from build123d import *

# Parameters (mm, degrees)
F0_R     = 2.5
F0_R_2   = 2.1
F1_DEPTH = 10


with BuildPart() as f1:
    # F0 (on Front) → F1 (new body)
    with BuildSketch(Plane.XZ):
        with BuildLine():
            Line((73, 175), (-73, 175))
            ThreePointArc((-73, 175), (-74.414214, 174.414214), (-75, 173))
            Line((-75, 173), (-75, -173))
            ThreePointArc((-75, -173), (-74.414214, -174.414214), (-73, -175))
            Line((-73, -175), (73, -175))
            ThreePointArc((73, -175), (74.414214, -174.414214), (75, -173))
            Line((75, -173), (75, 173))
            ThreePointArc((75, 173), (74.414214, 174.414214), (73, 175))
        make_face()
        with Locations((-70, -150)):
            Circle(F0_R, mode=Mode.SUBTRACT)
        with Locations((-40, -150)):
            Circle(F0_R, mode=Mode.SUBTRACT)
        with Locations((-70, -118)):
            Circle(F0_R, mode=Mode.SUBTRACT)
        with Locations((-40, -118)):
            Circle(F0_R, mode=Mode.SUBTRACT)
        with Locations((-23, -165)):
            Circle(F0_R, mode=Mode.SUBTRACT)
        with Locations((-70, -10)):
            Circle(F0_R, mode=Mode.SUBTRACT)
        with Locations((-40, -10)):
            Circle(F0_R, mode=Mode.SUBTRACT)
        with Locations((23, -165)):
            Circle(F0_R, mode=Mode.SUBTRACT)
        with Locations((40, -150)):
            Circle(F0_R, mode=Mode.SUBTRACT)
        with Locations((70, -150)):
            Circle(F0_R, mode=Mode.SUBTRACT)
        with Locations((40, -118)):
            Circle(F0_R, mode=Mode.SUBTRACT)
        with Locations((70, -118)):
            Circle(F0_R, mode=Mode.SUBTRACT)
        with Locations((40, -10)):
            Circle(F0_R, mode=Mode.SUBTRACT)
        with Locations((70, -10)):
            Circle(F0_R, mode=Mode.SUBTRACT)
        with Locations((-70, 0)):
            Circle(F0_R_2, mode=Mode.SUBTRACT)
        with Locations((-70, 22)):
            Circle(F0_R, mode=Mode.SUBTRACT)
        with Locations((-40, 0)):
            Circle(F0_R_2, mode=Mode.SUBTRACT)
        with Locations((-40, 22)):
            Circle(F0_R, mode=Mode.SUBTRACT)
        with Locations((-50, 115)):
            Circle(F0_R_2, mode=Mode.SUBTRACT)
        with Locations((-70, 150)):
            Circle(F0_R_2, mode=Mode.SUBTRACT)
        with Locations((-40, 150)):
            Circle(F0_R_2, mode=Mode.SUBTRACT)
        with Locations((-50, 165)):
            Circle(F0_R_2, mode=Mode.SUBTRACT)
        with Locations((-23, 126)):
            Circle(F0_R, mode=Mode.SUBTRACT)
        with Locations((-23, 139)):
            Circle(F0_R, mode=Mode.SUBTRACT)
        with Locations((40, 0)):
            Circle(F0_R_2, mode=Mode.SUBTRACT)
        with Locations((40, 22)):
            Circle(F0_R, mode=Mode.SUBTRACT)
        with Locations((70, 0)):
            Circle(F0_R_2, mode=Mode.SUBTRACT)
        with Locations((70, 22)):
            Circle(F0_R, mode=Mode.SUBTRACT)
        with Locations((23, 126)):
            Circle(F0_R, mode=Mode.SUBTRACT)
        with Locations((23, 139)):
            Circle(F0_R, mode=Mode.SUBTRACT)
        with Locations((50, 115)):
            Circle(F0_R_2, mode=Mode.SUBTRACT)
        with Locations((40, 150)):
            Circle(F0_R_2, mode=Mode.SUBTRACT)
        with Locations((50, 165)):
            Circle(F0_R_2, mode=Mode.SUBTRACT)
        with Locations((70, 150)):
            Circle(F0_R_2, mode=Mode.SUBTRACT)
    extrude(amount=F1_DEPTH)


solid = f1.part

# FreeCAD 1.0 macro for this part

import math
import FreeCAD as App
import Part
import Sketcher
from FreeCAD import Vector
Q = App.Units.Quantity

doc = App.newDocument("Part")
params = doc.addObject("Spreadsheet::Sheet", "Params")
for row, (alias, value) in enumerate([
    ("sketch1_diameter", "5 mm"),
    ("sketch1_radius", "1.999999 mm"),
    ("sketch1_diameter2", "4.2 mm"),
    ("sketch1_width", "146 mm"),
    ("sketch1_height", "346 mm"),
    ("pad1_length", "10 mm"),
], start=1):
    params.set(f"A{row}", alias)
    params.set(f"B{row}", "=" + value)
    params.setAlias(f"B{row}", alias)

body = doc.addObject("PartDesign::Body", "Body")

# Sketch on XZ plane
sketch1 = body.newObject("Sketcher::SketchObject", "Sketch")
sketch1.AttachmentSupport = (doc.getObject("XZ_Plane"), [""])
sketch1.MapMode = "FlatFace"
sketch1.addGeometry(Part.LineSegment(Vector(73, 175, 0), Vector(-73, 175, 0)), False)
sketch1.addGeometry(Part.ArcOfCircle(Part.Circle(Vector(-73.000001, 173.000001, 0), Vector(0, 0, 1), 1.999999), math.radians(89.999957), math.radians(180.000043)), False)
sketch1.addGeometry(Part.LineSegment(Vector(-75, 173, 0), Vector(-75, -173, 0)), False)
sketch1.addGeometry(Part.ArcOfCircle(Part.Circle(Vector(-73.000001, -173.000001, 0), Vector(0, 0, 1), 1.999999), math.radians(179.999957), math.radians(270.000043)), False)
sketch1.addGeometry(Part.LineSegment(Vector(-73, -175, 0), Vector(73, -175, 0)), False)
sketch1.addGeometry(Part.ArcOfCircle(Part.Circle(Vector(73.000001, -173.000001, 0), Vector(0, 0, 1), 1.999999), math.radians(-90.000043), math.radians(0.000043)), False)
sketch1.addGeometry(Part.LineSegment(Vector(75, -173, 0), Vector(75, 173, 0)), False)
sketch1.addGeometry(Part.ArcOfCircle(Part.Circle(Vector(73.000001, 173.000001, 0), Vector(0, 0, 1), 1.999999), math.radians(-0.000043), math.radians(90.000043)), False)
sketch1.addGeometry(Part.Circle(Vector(-70, -150, 0), Vector(0, 0, 1), 2.5), False)
sketch1.addGeometry(Part.Circle(Vector(-40, -150, 0), Vector(0, 0, 1), 2.5), False)
sketch1.addGeometry(Part.Circle(Vector(-70, -118, 0), Vector(0, 0, 1), 2.5), False)
sketch1.addGeometry(Part.Circle(Vector(-40, -118, 0), Vector(0, 0, 1), 2.5), False)
sketch1.addGeometry(Part.Circle(Vector(-23, -165, 0), Vector(0, 0, 1), 2.5), False)
sketch1.addGeometry(Part.Circle(Vector(-70, -10, 0), Vector(0, 0, 1), 2.5), False)
sketch1.addGeometry(Part.Circle(Vector(-40, -10, 0), Vector(0, 0, 1), 2.5), False)
sketch1.addGeometry(Part.Circle(Vector(23, -165, 0), Vector(0, 0, 1), 2.5), False)
sketch1.addGeometry(Part.Circle(Vector(40, -150, 0), Vector(0, 0, 1), 2.5), False)
sketch1.addGeometry(Part.Circle(Vector(70, -150, 0), Vector(0, 0, 1), 2.5), False)
sketch1.addGeometry(Part.Circle(Vector(40, -118, 0), Vector(0, 0, 1), 2.5), False)
sketch1.addGeometry(Part.Circle(Vector(70, -118, 0), Vector(0, 0, 1), 2.5), False)
sketch1.addGeometry(Part.Circle(Vector(40, -10, 0), Vector(0, 0, 1), 2.5), False)
sketch1.addGeometry(Part.Circle(Vector(70, -10, 0), Vector(0, 0, 1), 2.5), False)
sketch1.addGeometry(Part.Circle(Vector(-70, 0, 0), Vector(0, 0, 1), 2.1), False)
sketch1.addGeometry(Part.Circle(Vector(-70, 22, 0), Vector(0, 0, 1), 2.5), False)
sketch1.addGeometry(Part.Circle(Vector(-40, 0, 0), Vector(0, 0, 1), 2.1), False)
sketch1.addGeometry(Part.Circle(Vector(-40, 22, 0), Vector(0, 0, 1), 2.5), False)
sketch1.addGeometry(Part.Circle(Vector(-50, 115, 0), Vector(0, 0, 1), 2.1), False)
sketch1.addGeometry(Part.Circle(Vector(-70, 150, 0), Vector(0, 0, 1), 2.1), False)
sketch1.addGeometry(Part.Circle(Vector(-50, 165, 0), Vector(0, 0, 1), 2.1), False)
sketch1.addGeometry(Part.Circle(Vector(-40, 150, 0), Vector(0, 0, 1), 2.1), False)
sketch1.addGeometry(Part.Circle(Vector(-23, 126, 0), Vector(0, 0, 1), 2.5), False)
sketch1.addGeometry(Part.Circle(Vector(-23, 139, 0), Vector(0, 0, 1), 2.5), False)
sketch1.addGeometry(Part.Circle(Vector(40, 0, 0), Vector(0, 0, 1), 2.1), False)
sketch1.addGeometry(Part.Circle(Vector(40, 22, 0), Vector(0, 0, 1), 2.5), False)
sketch1.addGeometry(Part.Circle(Vector(70, 0, 0), Vector(0, 0, 1), 2.1), False)
sketch1.addGeometry(Part.Circle(Vector(70, 22, 0), Vector(0, 0, 1), 2.5), False)
sketch1.addGeometry(Part.Circle(Vector(23, 126, 0), Vector(0, 0, 1), 2.5), False)
sketch1.addGeometry(Part.Circle(Vector(23, 139, 0), Vector(0, 0, 1), 2.5), False)
sketch1.addGeometry(Part.Circle(Vector(50, 115, 0), Vector(0, 0, 1), 2.1), False)
sketch1.addGeometry(Part.Circle(Vector(40, 150, 0), Vector(0, 0, 1), 2.1), False)
sketch1.addGeometry(Part.Circle(Vector(50, 165, 0), Vector(0, 0, 1), 2.1), False)
sketch1.addGeometry(Part.Circle(Vector(70, 150, 0), Vector(0, 0, 1), 2.1), False)
sketch1.addConstraint(Sketcher.Constraint("Tangent", 0, 2, 1, 1))
sketch1.addConstraint(Sketcher.Constraint("Tangent", 1, 2, 2, 1))
sketch1.addConstraint(Sketcher.Constraint("Tangent", 2, 2, 3, 1))
sketch1.addConstraint(Sketcher.Constraint("Tangent", 3, 2, 4, 1))
sketch1.addConstraint(Sketcher.Constraint("Tangent", 4, 2, 5, 1))
sketch1.addConstraint(Sketcher.Constraint("Tangent", 5, 2, 6, 1))
sketch1.addConstraint(Sketcher.Constraint("Tangent", 6, 2, 7, 1))
sketch1.addConstraint(Sketcher.Constraint("Tangent", 7, 2, 0, 1))
sketch1.addConstraint(Sketcher.Constraint("Horizontal", 0))
sketch1.addConstraint(Sketcher.Constraint("Vertical", 2))
sketch1.addConstraint(Sketcher.Constraint("Horizontal", 4))
sketch1.addConstraint(Sketcher.Constraint("Vertical", 6))
sketch1.addConstraint(Sketcher.Constraint("Equal", 1, 3))
sketch1.addConstraint(Sketcher.Constraint("Equal", 3, 5))
sketch1.addConstraint(Sketcher.Constraint("Equal", 5, 7))
sketch1.addConstraint(Sketcher.Constraint("Equal", 8, 9))
sketch1.addConstraint(Sketcher.Constraint("Equal", 9, 10))
sketch1.addConstraint(Sketcher.Constraint("Equal", 10, 11))
sketch1.addConstraint(Sketcher.Constraint("Equal", 11, 12))
sketch1.addConstraint(Sketcher.Constraint("Equal", 12, 13))
sketch1.addConstraint(Sketcher.Constraint("Equal", 13, 14))
sketch1.addConstraint(Sketcher.Constraint("Equal", 14, 15))
sketch1.addConstraint(Sketcher.Constraint("Equal", 15, 16))
sketch1.addConstraint(Sketcher.Constraint("Equal", 16, 17))
sketch1.addConstraint(Sketcher.Constraint("Equal", 17, 18))
sketch1.addConstraint(Sketcher.Constraint("Equal", 18, 19))
sketch1.addConstraint(Sketcher.Constraint("Equal", 19, 20))
sketch1.addConstraint(Sketcher.Constraint("Equal", 20, 21))
sketch1.addConstraint(Sketcher.Constraint("Equal", 21, 23))
sketch1.addConstraint(Sketcher.Constraint("Equal", 22, 24))
sketch1.addConstraint(Sketcher.Constraint("Equal", 23, 25))
sketch1.addConstraint(Sketcher.Constraint("Equal", 24, 26))
sketch1.addConstraint(Sketcher.Constraint("Equal", 26, 27))
sketch1.addConstraint(Sketcher.Constraint("Equal", 27, 28))
sketch1.addConstraint(Sketcher.Constraint("Equal", 28, 29))
sketch1.addConstraint(Sketcher.Constraint("Equal", 25, 30))
sketch1.addConstraint(Sketcher.Constraint("Equal", 30, 31))
sketch1.addConstraint(Sketcher.Constraint("Equal", 29, 32))
sketch1.addConstraint(Sketcher.Constraint("Equal", 31, 33))
sketch1.addConstraint(Sketcher.Constraint("Equal", 32, 34))
sketch1.addConstraint(Sketcher.Constraint("Equal", 33, 35))
sketch1.addConstraint(Sketcher.Constraint("Equal", 35, 36))
sketch1.addConstraint(Sketcher.Constraint("Equal", 36, 37))
sketch1.addConstraint(Sketcher.Constraint("Equal", 34, 38))
sketch1.addConstraint(Sketcher.Constraint("Equal", 38, 39))
sketch1.addConstraint(Sketcher.Constraint("Equal", 39, 40))
sketch1.addConstraint(Sketcher.Constraint("Equal", 40, 41))
sketch1.addConstraint(Sketcher.Constraint("Symmetric", 1, 3, 5, 3, -1, 1))
sketch1.addConstraint(Sketcher.Constraint("Symmetric", 17, 3, 27, 3, -1, 1))
sketch1.addConstraint(Sketcher.Constraint("Symmetric", 16, 3, 29, 3, -1, 1))
sketch1.addConstraint(Sketcher.Constraint("Symmetric", 24, 3, 32, 3, -1, 1))
sketch1.addConstraint(Sketcher.Constraint("Symmetric", 22, 3, 34, 3, -1, 1))
sketch1.addConstraint(Sketcher.Constraint("Symmetric", 9, 3, 39, 3, -1, 1))
sketch1.addConstraint(Sketcher.Constraint("Symmetric", 8, 3, 41, 3, -1, 1))
sketch1.addConstraint(Sketcher.Constraint("Symmetric", 12, 3, 15, 3, -2))
sketch1.addConstraint(Sketcher.Constraint("Symmetric", 9, 3, 16, 3, -2))
sketch1.addConstraint(Sketcher.Constraint("Symmetric", 8, 3, 17, 3, -2))
sketch1.addConstraint(Sketcher.Constraint("Symmetric", 11, 3, 18, 3, -2))
sketch1.addConstraint(Sketcher.Constraint("Symmetric", 10, 3, 19, 3, -2))
sketch1.addConstraint(Sketcher.Constraint("Symmetric", 14, 3, 20, 3, -2))
sketch1.addConstraint(Sketcher.Constraint("Symmetric", 13, 3, 21, 3, -2))
sketch1.addConstraint(Sketcher.Constraint("Symmetric", 25, 3, 33, 3, -2))
sketch1.addConstraint(Sketcher.Constraint("Symmetric", 23, 3, 35, 3, -2))
sketch1.addConstraint(Sketcher.Constraint("Symmetric", 30, 3, 36, 3, -2))
sketch1.addConstraint(Sketcher.Constraint("Symmetric", 31, 3, 37, 3, -2))
sketch1.addConstraint(Sketcher.Constraint("Symmetric", 26, 3, 38, 3, -2))
sketch1.addConstraint(Sketcher.Constraint("Symmetric", 28, 3, 40, 3, -2))
sketch1.addConstraint(Sketcher.Constraint("PointOnObject", 22, 3, -1))
sketch1.addConstraint(Sketcher.Constraint("PointOnObject", 24, 3, -1))
sketch1.addConstraint(Sketcher.Constraint("Horizontal", 8, 3, 9, 3))
sketch1.addConstraint(Sketcher.Constraint("Horizontal", 10, 3, 11, 3))
sketch1.addConstraint(Sketcher.Constraint("Horizontal", 13, 3, 14, 3))
sketch1.addConstraint(Sketcher.Constraint("Horizontal", 23, 3, 25, 3))
sketch1.addConstraint(Sketcher.Constraint("Vertical", 8, 3, 10, 3))
sketch1.addConstraint(Sketcher.Constraint("Vertical", 9, 3, 11, 3))
sketch1.addConstraint(Sketcher.Constraint("Vertical", 10, 3, 13, 3))
sketch1.addConstraint(Sketcher.Constraint("Vertical", 11, 3, 14, 3))
sketch1.addConstraint(Sketcher.Constraint("Vertical", 13, 3, 22, 3))
sketch1.addConstraint(Sketcher.Constraint("Vertical", 22, 3, 23, 3))
sketch1.addConstraint(Sketcher.Constraint("Vertical", 14, 3, 24, 3))
sketch1.addConstraint(Sketcher.Constraint("Vertical", 24, 3, 25, 3))
sketch1.addConstraint(Sketcher.Constraint("Vertical", 26, 3, 28, 3))
sketch1.addConstraint(Sketcher.Constraint("Vertical", 12, 3, 30, 3))
sketch1.addConstraint(Sketcher.Constraint("Vertical", 30, 3, 31, 3))
sketch1.addConstraint(Sketcher.Constraint("Diameter", 8, Q("5 mm")))
sketch1.addConstraint(Sketcher.Constraint("Radius", 1, Q("1.999999 mm")))
sketch1.addConstraint(Sketcher.Constraint("Diameter", 22, Q("4.2 mm")))
sketch1.addConstraint(Sketcher.Constraint("DistanceX", 0, 2, 0, 1, Q("146 mm")))
sketch1.addConstraint(Sketcher.Constraint("DistanceY", 2, 2, 2, 1, Q("346 mm")))
sketch1.addConstraint(Sketcher.Constraint("DistanceX", 8, 3, -1, 1, Q("70 mm")))
sketch1.addConstraint(Sketcher.Constraint("DistanceY", 8, 3, -1, 1, Q("150 mm")))
sketch1.addConstraint(Sketcher.Constraint("DistanceX", 9, 3, -1, 1, Q("40 mm")))
sketch1.addConstraint(Sketcher.Constraint("DistanceY", 10, 3, -1, 1, Q("118 mm")))
sketch1.addConstraint(Sketcher.Constraint("DistanceX", 12, 3, -1, 1, Q("23 mm")))
sketch1.addConstraint(Sketcher.Constraint("DistanceY", 12, 3, -1, 1, Q("165 mm")))
sketch1.addConstraint(Sketcher.Constraint("DistanceY", 13, 3, -1, 1, Q("10 mm")))
sketch1.addConstraint(Sketcher.Constraint("DistanceY", -1, 1, 23, 3, Q("22 mm")))
sketch1.addConstraint(Sketcher.Constraint("DistanceX", 26, 3, -1, 1, Q("50 mm")))
sketch1.addConstraint(Sketcher.Constraint("DistanceY", -1, 1, 26, 3, Q("115 mm")))
sketch1.addConstraint(Sketcher.Constraint("DistanceY", -1, 1, 28, 3, Q("165 mm")))
sketch1.addConstraint(Sketcher.Constraint("DistanceY", -1, 1, 30, 3, Q("126 mm")))
sketch1.addConstraint(Sketcher.Constraint("DistanceY", -1, 1, 31, 3, Q("139 mm")))
sketch1.setExpression("Constraints[84]", "Params.sketch1_diameter")
sketch1.setExpression("Constraints[85]", "Params.sketch1_radius")
sketch1.setExpression("Constraints[86]", "Params.sketch1_diameter2")
sketch1.setExpression("Constraints[87]", "Params.sketch1_width")
sketch1.setExpression("Constraints[88]", "Params.sketch1_height")
pad1 = body.newObject("PartDesign::Pad", "Pad")
pad1.Profile = sketch1
pad1.setExpression("Length", "Params.pad1_length")

doc.recompute()
